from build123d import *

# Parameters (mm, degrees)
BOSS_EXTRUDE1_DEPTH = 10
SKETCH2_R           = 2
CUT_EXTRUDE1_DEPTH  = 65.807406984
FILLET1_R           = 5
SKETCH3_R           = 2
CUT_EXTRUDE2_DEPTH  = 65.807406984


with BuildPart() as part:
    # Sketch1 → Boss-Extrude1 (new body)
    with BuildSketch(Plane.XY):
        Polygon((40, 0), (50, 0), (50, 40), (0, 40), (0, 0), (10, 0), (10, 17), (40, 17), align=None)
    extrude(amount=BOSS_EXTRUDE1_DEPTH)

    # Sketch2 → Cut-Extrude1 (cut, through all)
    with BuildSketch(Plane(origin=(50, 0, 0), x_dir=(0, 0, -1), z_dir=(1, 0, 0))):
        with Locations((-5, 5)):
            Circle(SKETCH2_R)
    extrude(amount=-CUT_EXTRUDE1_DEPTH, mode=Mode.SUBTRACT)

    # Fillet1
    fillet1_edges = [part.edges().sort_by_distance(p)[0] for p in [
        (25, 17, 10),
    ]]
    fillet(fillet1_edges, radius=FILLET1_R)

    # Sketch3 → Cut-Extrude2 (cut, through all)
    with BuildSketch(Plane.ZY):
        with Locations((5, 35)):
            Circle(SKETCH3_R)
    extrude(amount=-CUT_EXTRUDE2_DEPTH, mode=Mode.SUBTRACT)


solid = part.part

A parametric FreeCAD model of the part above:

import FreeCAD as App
import Part
import Sketcher
Q = App.Units.Quantity


def edges_at(feature, points):
    """Names of the edges that pass closest to the given points."""
    edges = feature.Shape.Edges
    near = lambda p: min(range(len(edges)), key=lambda i: edges[i].distToShape(Part.Vertex(*p))[0])
    return sorted({f"Edge{near(p) + 1}" for p in points})

doc = App.newDocument("Part")
body = doc.addObject("PartDesign::Body", "Body")

sketch1 = doc.addObject("Sketcher::SketchObject", "Sketch")
body.addObject(sketch1)
sketch1.AttachmentSupport = (doc.XY_Plane, [""])
sketch1.MapMode = "FlatFace"
sketch1.addGeometry([
    Part.LineSegment(App.Vector(40, 0, 0), App.Vector(50, 0, 0)),
    Part.LineSegment(App.Vector(50, 0, 0), App.Vector(50, 40, 0)),
    Part.LineSegment(App.Vector(50, 40, 0), App.Vector(0, 40, 0)),
    Part.LineSegment(App.Vector(0, 40, 0), App.Vector(0, 0, 0)),
    Part.LineSegment(App.Vector(0, 0, 0), App.Vector(10, 0, 0)),
    Part.LineSegment(App.Vector(10, 0, 0), App.Vector(10, 17, 0)),
    Part.LineSegment(App.Vector(10, 17, 0), App.Vector(40, 17, 0)),
    Part.LineSegment(App.Vector(40, 17, 0), App.Vector(40, 0, 0)),
], False)
sketch1.addConstraint([
    Sketcher.Constraint("Coincident", 0, 2, 1, 1),
    Sketcher.Constraint("Coincident", 1, 2, 2, 1),
    Sketcher.Constraint("Coincident", 2, 2, 3, 1),
    Sketcher.Constraint("Coincident", 3, 2, 4, 1),
    Sketcher.Constraint("Coincident", 4, 2, 5, 1),
    Sketcher.Constraint("Coincident", 5, 2, 6, 1),
    Sketcher.Constraint("Coincident", 6, 2, 7, 1),
    Sketcher.Constraint("Coincident", 7, 2, 0, 1),
    Sketcher.Constraint("Horizontal", 0),
    Sketcher.Constraint("Vertical", 1),
    Sketcher.Constraint("Horizontal", 2),
    Sketcher.Constraint("Vertical", 3),
    Sketcher.Constraint("Horizontal", 4),
    Sketcher.Constraint("Vertical", 5),
    Sketcher.Constraint("Horizontal", 6),
    Sketcher.Constraint("Vertical", 7),
    Sketcher.Constraint("Coincident", 3, 2, -1, 1),
    Sketcher.Constraint("PointOnObject", 0, 2, -1),
    Sketcher.Constraint("Equal", 0, 4),
    Sketcher.Constraint("DistanceX", 0, 1, 0, 2, Q("10 mm")),
    Sketcher.Constraint("DistanceX", 2, 2, 2, 1, Q("50 mm")),
    Sketcher.Constraint("DistanceY", 1, 1, 1, 2, Q("40 mm")),
    Sketcher.Constraint("DistanceY", 5, 1, 5, 2, Q("17 mm")),
])
pad1 = doc.addObject("PartDesign::Pad", "Pad")
body.addObject(pad1)
pad1.Profile = sketch1
pad1.Length = 10

sketch2 = doc.addObject("Sketcher::SketchObject", "Sketch001")
body.addObject(sketch2)
sketch2.AttachmentSupport = (doc.YZ_Plane, [""])
sketch2.MapMode = "FlatFace"
sketch2.AttachmentOffset = App.Placement(App.Vector(0, 0, 50), App.Rotation())
sketch2.addGeometry(Part.Circle(App.Vector(5, 5, 0), App.Vector(0, 0, 1), 2), False)
sketch2.addConstraint([
    Sketcher.Constraint("Diameter", 0, Q("4 mm")),
    Sketcher.Constraint("DistanceX", -1, 1, 0, 3, Q("5 mm")),
    Sketcher.Constraint("DistanceY", -1, 1, 0, 3, Q("5 mm")),
])
pocket1 = doc.addObject("PartDesign::Pocket", "Pocket")
body.addObject(pocket1)
pocket1.Profile = sketch2
pocket1.Type = "ThroughAll"
doc.recompute()

fillet = doc.addObject("PartDesign::Fillet", "Fillet")
body.addObject(fillet)
fillet.Base = (pocket1, edges_at(pocket1, [(25, 17, 10)]))
fillet.Radius = 5

sketch3 = doc.addObject("Sketcher::SketchObject", "Sketch002")
body.addObject(sketch3)
sketch3.AttachmentSupport = (doc.YZ_Plane, [""])
sketch3.MapMode = "FlatFace"
sketch3.addGeometry(Part.Circle(App.Vector(35, 5, 0), App.Vector(0, 0, 1), 2), False)
sketch3.addConstraint([
    Sketcher.Constraint("Diameter", 0, Q("4 mm")),
    Sketcher.Constraint("DistanceX", -1, 1, 0, 3, Q("35 mm")),
    Sketcher.Constraint("DistanceY", -1, 1, 0, 3, Q("5 mm")),
])
pocket2 = doc.addObject("PartDesign::Pocket", "Pocket001")
body.addObject(pocket2)
pocket2.Profile = sketch3
pocket2.Type = "ThroughAll"
pocket2.Reversed = True

doc.recompute()
